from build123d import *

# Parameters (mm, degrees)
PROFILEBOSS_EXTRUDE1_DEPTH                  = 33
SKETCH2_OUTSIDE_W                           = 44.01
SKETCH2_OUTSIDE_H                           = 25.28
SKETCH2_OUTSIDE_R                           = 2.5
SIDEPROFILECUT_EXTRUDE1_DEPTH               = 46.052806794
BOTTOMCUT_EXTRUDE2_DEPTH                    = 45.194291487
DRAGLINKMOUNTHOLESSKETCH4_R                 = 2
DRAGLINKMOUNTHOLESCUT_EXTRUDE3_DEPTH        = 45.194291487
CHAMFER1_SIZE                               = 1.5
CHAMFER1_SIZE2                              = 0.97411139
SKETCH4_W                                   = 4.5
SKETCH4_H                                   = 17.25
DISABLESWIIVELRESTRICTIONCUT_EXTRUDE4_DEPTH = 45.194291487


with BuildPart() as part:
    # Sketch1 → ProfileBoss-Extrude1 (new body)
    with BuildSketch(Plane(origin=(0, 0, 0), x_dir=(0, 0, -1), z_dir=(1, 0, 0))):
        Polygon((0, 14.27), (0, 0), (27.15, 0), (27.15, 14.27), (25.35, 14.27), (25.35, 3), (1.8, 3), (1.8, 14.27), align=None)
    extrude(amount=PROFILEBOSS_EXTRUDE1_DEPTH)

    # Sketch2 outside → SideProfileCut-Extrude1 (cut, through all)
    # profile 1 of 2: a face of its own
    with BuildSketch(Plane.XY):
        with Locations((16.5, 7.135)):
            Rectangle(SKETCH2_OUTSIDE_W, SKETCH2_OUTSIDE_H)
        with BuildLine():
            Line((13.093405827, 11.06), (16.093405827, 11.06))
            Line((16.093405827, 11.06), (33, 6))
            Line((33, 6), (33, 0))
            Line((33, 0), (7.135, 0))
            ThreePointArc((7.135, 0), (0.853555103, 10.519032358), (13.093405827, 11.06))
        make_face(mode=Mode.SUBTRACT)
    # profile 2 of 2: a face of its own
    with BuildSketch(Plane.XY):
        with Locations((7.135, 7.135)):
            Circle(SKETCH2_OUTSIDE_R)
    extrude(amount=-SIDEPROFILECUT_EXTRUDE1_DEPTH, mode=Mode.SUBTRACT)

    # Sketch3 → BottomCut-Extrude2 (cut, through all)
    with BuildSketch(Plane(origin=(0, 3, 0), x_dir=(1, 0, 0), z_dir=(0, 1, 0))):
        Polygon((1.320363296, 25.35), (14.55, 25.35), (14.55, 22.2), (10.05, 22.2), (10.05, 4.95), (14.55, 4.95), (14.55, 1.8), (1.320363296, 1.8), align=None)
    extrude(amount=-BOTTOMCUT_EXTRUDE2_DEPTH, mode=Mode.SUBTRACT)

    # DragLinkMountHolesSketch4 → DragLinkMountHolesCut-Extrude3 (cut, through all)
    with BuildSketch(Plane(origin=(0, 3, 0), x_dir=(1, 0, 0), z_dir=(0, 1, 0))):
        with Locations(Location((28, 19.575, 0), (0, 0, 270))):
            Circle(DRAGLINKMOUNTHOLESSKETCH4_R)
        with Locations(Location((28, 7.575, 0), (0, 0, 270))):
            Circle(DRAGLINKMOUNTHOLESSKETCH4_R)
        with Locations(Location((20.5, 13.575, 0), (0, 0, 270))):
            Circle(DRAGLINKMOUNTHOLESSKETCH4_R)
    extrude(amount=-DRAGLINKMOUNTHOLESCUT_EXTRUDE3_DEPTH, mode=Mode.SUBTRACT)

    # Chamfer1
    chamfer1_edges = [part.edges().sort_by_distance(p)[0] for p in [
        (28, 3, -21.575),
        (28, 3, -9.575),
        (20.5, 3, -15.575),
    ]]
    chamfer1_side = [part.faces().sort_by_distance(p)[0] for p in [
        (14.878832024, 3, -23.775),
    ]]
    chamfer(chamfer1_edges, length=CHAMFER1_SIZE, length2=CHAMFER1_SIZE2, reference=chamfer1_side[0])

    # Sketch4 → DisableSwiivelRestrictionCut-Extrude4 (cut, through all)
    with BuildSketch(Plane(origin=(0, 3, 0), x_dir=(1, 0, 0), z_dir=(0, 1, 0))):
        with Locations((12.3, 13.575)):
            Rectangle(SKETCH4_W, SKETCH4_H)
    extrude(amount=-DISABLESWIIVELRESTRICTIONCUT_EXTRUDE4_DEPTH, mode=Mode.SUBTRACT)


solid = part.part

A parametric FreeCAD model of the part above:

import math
import FreeCAD as App
import Part
import Sketcher
Q = App.Units.Quantity


def edges_at(feature, points):
    """Names of the edges that pass closest to the given points."""
    edges = feature.Shape.Edges
    near = lambda p: min(range(len(edges)), key=lambda i: edges[i].distToShape(Part.Vertex(*p))[0])
    return sorted({f"Edge{near(p) + 1}" for p in points})


def add_polygon(sketch, points):
    """Adds a closed chain of lines whose ends are joined by coincident constraints."""
    first, n = sketch.GeometryCount, len(points)
    for a, b in zip(points, points[1:] + points[:1]):
        sketch.addGeometry(Part.LineSegment(App.Vector(*a, 0), App.Vector(*b, 0)), False)
    for i in range(n):
        sketch.addConstraint(Sketcher.Constraint("Coincident", first + i, 2, first + (i + 1) % n, 1))

doc = App.newDocument("Part")
params = doc.addObject("Spreadsheet::Sheet", "Params")
for row, (alias, value) in enumerate([
    ("sketch1_height", "1.8 mm"),
    ("sketch1_width", "14.27 mm"),
    ("sketch1_height2", "27.15 mm"),
    ("pad1_length", "33 mm"),
    ("sketch2_diameter", "5 mm"),
    ("sketch2_width", "3 mm"),
    ("sketch2_height", "6 mm"),
    ("sketch2_width2", "44.01 mm"),
    ("sketch2_height2", "25.28 mm"),
    ("pocket1_length", "46.052807 mm"),
    ("sketch3_width", "4.5 mm"),
    ("sketch3_height", "23.55 mm"),
    ("sketch3_height2", "3.15 mm"),
    ("sketch4_diameter", "4 mm"),
    ("chamfer_size", "1.5 mm"),
    ("chamfer_size2", "0.974111 mm"),
    ("sketch5_width", "4.5 mm"),
    ("sketch5_height", "17.25 mm"),
], start=1):
    params.set(f"A{row}", alias)
    params.set(f"B{row}", "=" + value)
    params.setAlias(f"B{row}", alias)

body = doc.addObject("PartDesign::Body", "Body")

# Sketch on YZ plane
sketch1 = body.newObject("Sketcher::SketchObject", "Sketch")
sketch1.AttachmentSupport = (doc.getObject("YZ_Plane"), [""])
sketch1.MapMode = "FlatFace"
add_polygon(sketch1, [(14.3, 0), (0, 0), (0, -27.1), (14.3, -27.1), (14.3, -25.4), (3, -25.4), (3, -1.8), (14.3, -1.8)])  # lines 0-7
sketch1.addConstraint([
    Sketcher.Constraint("Horizontal", 0),
    Sketcher.Constraint("Vertical", 1),
    Sketcher.Constraint("Horizontal", 2),
    Sketcher.Constraint("Vertical", 3),
    Sketcher.Constraint("Horizontal", 4),
    Sketcher.Constraint("Vertical", 5),
    Sketcher.Constraint("Horizontal", 6),
    Sketcher.Constraint("Vertical", 7),
    Sketcher.Constraint("Coincident", 0, 2, -1, 1),
    Sketcher.Constraint("Vertical", 3, 2, 6, 2),
    Sketcher.Constraint("Equal", 3, 7),
    Sketcher.Constraint("DistanceY", 3, 1, 3, 2, Q("1.8 mm")),
    Sketcher.Constraint("DistanceX", -1, 1, 4, 2, Q("3 mm")),
    Sketcher.Constraint("DistanceX", 0, 2, 0, 1, Q("14.27 mm")),
    Sketcher.Constraint("DistanceY", 1, 2, 1, 1, Q("27.15 mm")),
])
sketch1.setExpression("Constraints[19]", "Params.sketch1_height")
sketch1.setExpression("Constraints[21]", "Params.sketch1_width")
sketch1.setExpression("Constraints[22]", "Params.sketch1_height2")
pad1 = body.newObject("PartDesign::Pad", "Pad")
pad1.Profile = sketch1
pad1.setExpression("Length", "Params.pad1_length")

# Sketch on XY plane
sketch2 = body.newObject("Sketcher::SketchObject", "Sketch001")
sketch2.AttachmentSupport = (doc.getObject("XY_Plane"), [""])
sketch2.MapMode = "FlatFace"
add_polygon(sketch2, [(-5.5, 19.8), (-5.5, -5.5), (38.5, -5.5), (38.5, 19.8)])  # lines 0-3
sketch2.addGeometry(Part.ArcOfCircle(Part.Circle(App.Vector(7.1, 7.1, 0), App.Vector(0, 0, 1), 7.1), math.radians(33), math.radians(270)), False)  # 4
sketch2.addGeometry(Part.LineSegment(App.Vector(13.1, 11.1, 0), App.Vector(16.1, 11.1, 0)), False)  # 5
sketch2.addGeometry(Part.LineSegment(App.Vector(16.1, 11.1, 0), App.Vector(33, 6, 0)), False)  # 6
sketch2.addGeometry(Part.LineSegment(App.Vector(33, 6, 0), App.Vector(33, 0, 0)), False)  # 7
sketch2.addGeometry(Part.LineSegment(App.Vector(33, 0, 0), App.Vector(7.1, 0, 0)), False)  # 8
sketch2.addGeometry(Part.Circle(App.Vector(7.1, 7.1, 0), App.Vector(0, 0, 1), 2.5), False)  # 9
sketch2.addConstraint([
    Sketcher.Constraint("Coincident", 4, 1, 5, 1),
    Sketcher.Constraint("Coincident", 5, 2, 6, 1),
    Sketcher.Constraint("Coincident", 6, 2, 7, 1),
    Sketcher.Constraint("Coincident", 7, 2, 8, 1),
    Sketcher.Constraint("Tangent", 8, 2, 4, 2),
    Sketcher.Constraint("Vertical", 0),
    Sketcher.Constraint("Horizontal", 1),
    Sketcher.Constraint("Vertical", 2),
    Sketcher.Constraint("Horizontal", 3),
    Sketcher.Constraint("Horizontal", 5),
    Sketcher.Constraint("Vertical", 7),
    Sketcher.Constraint("Horizontal", 8),
    Sketcher.Constraint("Coincident", 9, 3, 4, 3),
    Sketcher.Constraint("PointOnObject", 7, 2, -1),
    Sketcher.Constraint("Diameter", 9, Q("5 mm")),
    Sketcher.Constraint("DistanceX", 5, 1, 5, 2, Q("3 mm")),
    Sketcher.Constraint("DistanceY", 7, 2, 7, 1, Q("6 mm")),
    Sketcher.Constraint("DistanceX", -1, 1, 6, 2, Q("33 mm")),
    Sketcher.Constraint("Radius", 4, Q("7.135 mm")),
    Sketcher.Constraint("DistanceX", 1, 1, 1, 2, Q("44.01 mm")),
    Sketcher.Constraint("DistanceY", 0, 2, 0, 1, Q("25.28 mm")),
    Sketcher.Constraint("DistanceX", 8, 2, 8, 1, Q("25.865 mm")),
    Sketcher.Constraint("DistanceY", -1, 1, 4, 1, Q("11.06 mm")),
    Sketcher.Constraint("DistanceX", 0, 2, 4, 3, Q("12.64 mm")),
    Sketcher.Constraint("DistanceY", 0, 2, 4, 3, Q("12.64 mm")),
])
sketch2.setExpression("Constraints[18]", "Params.sketch2_diameter")
sketch2.setExpression("Constraints[19]", "Params.sketch2_width")
sketch2.setExpression("Constraints[20]", "Params.sketch2_height")
sketch2.setExpression("Constraints[23]", "Params.sketch2_width2")
sketch2.setExpression("Constraints[24]", "Params.sketch2_height2")
pocket1 = body.newObject("PartDesign::Pocket", "Pocket")
pocket1.Profile = sketch2
pocket1.setExpression("Length", "Params.pocket1_length")

# Sketch on XZ plane
sketch3 = body.newObject("Sketcher::SketchObject", "Sketch002")
sketch3.AttachmentSupport = (doc.getObject("XZ_Plane"), [""])
sketch3.MapMode = "FlatFace"
sketch3.AttachmentOffset = App.Placement(App.Vector(0, 0, -3), App.Rotation())
add_polygon(sketch3, [(14.6, -25.4), (1.3, -25.4), (1.3, -1.8), (14.6, -1.8), (14.6, -5), (10.1, -5), (10.1, -22.2), (14.6, -22.2)])  # lines 0-7
sketch3.addConstraint([
    Sketcher.Constraint("Horizontal", 0),
    Sketcher.Constraint("Vertical", 1),
    Sketcher.Constraint("Horizontal", 2),
    Sketcher.Constraint("Vertical", 3),
    Sketcher.Constraint("Horizontal", 4),
    Sketcher.Constraint("Vertical", 5),
    Sketcher.Constraint("Horizontal", 6),
    Sketcher.Constraint("Vertical", 7),
    Sketcher.Constraint("Vertical", 3, 2, 6, 2),
    Sketcher.Constraint("Equal", 3, 7),
    Sketcher.Constraint("DistanceX", 4, 2, 4, 1, Q("4.5 mm")),
    Sketcher.Constraint("DistanceY", 1, 1, 1, 2, Q("23.55 mm")),
    Sketcher.Constraint("DistanceY", 3, 2, 3, 1, Q("3.15 mm")),
    Sketcher.Constraint("DistanceY", 1, 2, -1, 1, Q("1.8 mm")),
    Sketcher.Constraint("DistanceX", -1, 1, 2, 2, Q("14.55 mm")),
    Sketcher.Constraint("DistanceX", 0, 2, 0, 1, Q("13.229637 mm")),
])
sketch3.setExpression("Constraints[18]", "Params.sketch3_width")
sketch3.setExpression("Constraints[19]", "Params.sketch3_height")
sketch3.setExpression("Constraints[20]", "Params.sketch3_height2")
pocket2 = body.newObject("PartDesign::Pocket", "Pocket001")
pocket2.Profile = sketch3
pocket2.Type = "ThroughAll"
pocket2.Reversed = True

# Sketch on XZ plane
sketch4 = body.newObject("Sketcher::SketchObject", "Sketch003")
sketch4.AttachmentSupport = (doc.getObject("XZ_Plane"), [""])
sketch4.MapMode = "FlatFace"
sketch4.AttachmentOffset = App.Placement(App.Vector(0, 0, -3), App.Rotation())
sketch4.addGeometry([
    Part.Circle(App.Vector(28, -19.6, 0), App.Vector(0, 0, 1), 2),
    Part.Circle(App.Vector(28, -7.6, 0), App.Vector(0, 0, 1), 2),
    Part.Circle(App.Vector(20.5, -13.6, 0), App.Vector(0, 0, 1), 2),
], False)
sketch4.addConstraint([
    Sketcher.Constraint("Equal", 0, 1),
    Sketcher.Constraint("Equal", 1, 2),
    Sketcher.Constraint("Vertical", 0, 3, 1, 3),
    Sketcher.Constraint("Diameter", 0, Q("4 mm")),
    Sketcher.Constraint("DistanceX", -1, 1, 0, 3, Q("28 mm")),
    Sketcher.Constraint("DistanceY", 0, 3, 1, 3, Q("12 mm")),
    Sketcher.Constraint("DistanceY", 0, 3, 2, 3, Q("6 mm")),
    Sketcher.Constraint("DistanceX", -1, 1, 2, 3, Q("20.5 mm")),
    Sketcher.Constraint("DistanceY", 0, 3, -1, 1, Q("19.575 mm")),
])
sketch4.setExpression("Constraints[3]", "Params.sketch4_diameter")
pocket3 = body.newObject("PartDesign::Pocket", "Pocket002")
pocket3.Profile = sketch4
pocket3.Type = "ThroughAll"
pocket3.Reversed = True
doc.recompute()

chamfer = body.newObject("PartDesign::Chamfer", "Chamfer")
chamfer.Base = (pocket3, edges_at(pocket3, [(28, 3, -21.575), (28, 3, -9.575), (20.5, 3, -15.575)]))
chamfer.ChamferType = "Two distances"
chamfer.setExpression("Size", "Params.chamfer_size")
chamfer.setExpression("Size2", "Params.chamfer_size2")
chamfer.FlipDirection = True

# Sketch on XZ plane
sketch5 = body.newObject("Sketcher::SketchObject", "Sketch004")
sketch5.AttachmentSupport = (doc.getObject("XZ_Plane"), [""])
sketch5.MapMode = "FlatFace"
sketch5.AttachmentOffset = App.Placement(App.Vector(0, 0, -3), App.Rotation())
add_polygon(sketch5, [(10.1, -22.2), (10.1, -5), (14.6, -5), (14.6, -22.2)])  # lines 0-3
sketch5.addConstraint([
    Sketcher.Constraint("Vertical", 0),
    Sketcher.Constraint("Horizontal", 1),
    Sketcher.Constraint("Vertical", 2),
    Sketcher.Constraint("Horizontal", 3),
    Sketcher.Constraint("DistanceX", 1, 1, 1, 2, Q("4.5 mm")),
    Sketcher.Constraint("DistanceY", 0, 1, 0, 2, Q("17.25 mm")),
    Sketcher.Constraint("DistanceY", 2, 2, -1, 1, Q("22.2 mm")),
    Sketcher.Constraint("DistanceX", -1, 1, 0, 2, Q("10.05 mm")),
])
sketch5.setExpression("Constraints[8]", "Params.sketch5_width")
sketch5.setExpression("Constraints[9]", "Params.sketch5_height")
pocket4 = body.newObject("PartDesign::Pocket", "Pocket003")
pocket4.Profile = sketch5
pocket4.Type = "ThroughAll"
pocket4.Reversed = True

doc.recompute()
